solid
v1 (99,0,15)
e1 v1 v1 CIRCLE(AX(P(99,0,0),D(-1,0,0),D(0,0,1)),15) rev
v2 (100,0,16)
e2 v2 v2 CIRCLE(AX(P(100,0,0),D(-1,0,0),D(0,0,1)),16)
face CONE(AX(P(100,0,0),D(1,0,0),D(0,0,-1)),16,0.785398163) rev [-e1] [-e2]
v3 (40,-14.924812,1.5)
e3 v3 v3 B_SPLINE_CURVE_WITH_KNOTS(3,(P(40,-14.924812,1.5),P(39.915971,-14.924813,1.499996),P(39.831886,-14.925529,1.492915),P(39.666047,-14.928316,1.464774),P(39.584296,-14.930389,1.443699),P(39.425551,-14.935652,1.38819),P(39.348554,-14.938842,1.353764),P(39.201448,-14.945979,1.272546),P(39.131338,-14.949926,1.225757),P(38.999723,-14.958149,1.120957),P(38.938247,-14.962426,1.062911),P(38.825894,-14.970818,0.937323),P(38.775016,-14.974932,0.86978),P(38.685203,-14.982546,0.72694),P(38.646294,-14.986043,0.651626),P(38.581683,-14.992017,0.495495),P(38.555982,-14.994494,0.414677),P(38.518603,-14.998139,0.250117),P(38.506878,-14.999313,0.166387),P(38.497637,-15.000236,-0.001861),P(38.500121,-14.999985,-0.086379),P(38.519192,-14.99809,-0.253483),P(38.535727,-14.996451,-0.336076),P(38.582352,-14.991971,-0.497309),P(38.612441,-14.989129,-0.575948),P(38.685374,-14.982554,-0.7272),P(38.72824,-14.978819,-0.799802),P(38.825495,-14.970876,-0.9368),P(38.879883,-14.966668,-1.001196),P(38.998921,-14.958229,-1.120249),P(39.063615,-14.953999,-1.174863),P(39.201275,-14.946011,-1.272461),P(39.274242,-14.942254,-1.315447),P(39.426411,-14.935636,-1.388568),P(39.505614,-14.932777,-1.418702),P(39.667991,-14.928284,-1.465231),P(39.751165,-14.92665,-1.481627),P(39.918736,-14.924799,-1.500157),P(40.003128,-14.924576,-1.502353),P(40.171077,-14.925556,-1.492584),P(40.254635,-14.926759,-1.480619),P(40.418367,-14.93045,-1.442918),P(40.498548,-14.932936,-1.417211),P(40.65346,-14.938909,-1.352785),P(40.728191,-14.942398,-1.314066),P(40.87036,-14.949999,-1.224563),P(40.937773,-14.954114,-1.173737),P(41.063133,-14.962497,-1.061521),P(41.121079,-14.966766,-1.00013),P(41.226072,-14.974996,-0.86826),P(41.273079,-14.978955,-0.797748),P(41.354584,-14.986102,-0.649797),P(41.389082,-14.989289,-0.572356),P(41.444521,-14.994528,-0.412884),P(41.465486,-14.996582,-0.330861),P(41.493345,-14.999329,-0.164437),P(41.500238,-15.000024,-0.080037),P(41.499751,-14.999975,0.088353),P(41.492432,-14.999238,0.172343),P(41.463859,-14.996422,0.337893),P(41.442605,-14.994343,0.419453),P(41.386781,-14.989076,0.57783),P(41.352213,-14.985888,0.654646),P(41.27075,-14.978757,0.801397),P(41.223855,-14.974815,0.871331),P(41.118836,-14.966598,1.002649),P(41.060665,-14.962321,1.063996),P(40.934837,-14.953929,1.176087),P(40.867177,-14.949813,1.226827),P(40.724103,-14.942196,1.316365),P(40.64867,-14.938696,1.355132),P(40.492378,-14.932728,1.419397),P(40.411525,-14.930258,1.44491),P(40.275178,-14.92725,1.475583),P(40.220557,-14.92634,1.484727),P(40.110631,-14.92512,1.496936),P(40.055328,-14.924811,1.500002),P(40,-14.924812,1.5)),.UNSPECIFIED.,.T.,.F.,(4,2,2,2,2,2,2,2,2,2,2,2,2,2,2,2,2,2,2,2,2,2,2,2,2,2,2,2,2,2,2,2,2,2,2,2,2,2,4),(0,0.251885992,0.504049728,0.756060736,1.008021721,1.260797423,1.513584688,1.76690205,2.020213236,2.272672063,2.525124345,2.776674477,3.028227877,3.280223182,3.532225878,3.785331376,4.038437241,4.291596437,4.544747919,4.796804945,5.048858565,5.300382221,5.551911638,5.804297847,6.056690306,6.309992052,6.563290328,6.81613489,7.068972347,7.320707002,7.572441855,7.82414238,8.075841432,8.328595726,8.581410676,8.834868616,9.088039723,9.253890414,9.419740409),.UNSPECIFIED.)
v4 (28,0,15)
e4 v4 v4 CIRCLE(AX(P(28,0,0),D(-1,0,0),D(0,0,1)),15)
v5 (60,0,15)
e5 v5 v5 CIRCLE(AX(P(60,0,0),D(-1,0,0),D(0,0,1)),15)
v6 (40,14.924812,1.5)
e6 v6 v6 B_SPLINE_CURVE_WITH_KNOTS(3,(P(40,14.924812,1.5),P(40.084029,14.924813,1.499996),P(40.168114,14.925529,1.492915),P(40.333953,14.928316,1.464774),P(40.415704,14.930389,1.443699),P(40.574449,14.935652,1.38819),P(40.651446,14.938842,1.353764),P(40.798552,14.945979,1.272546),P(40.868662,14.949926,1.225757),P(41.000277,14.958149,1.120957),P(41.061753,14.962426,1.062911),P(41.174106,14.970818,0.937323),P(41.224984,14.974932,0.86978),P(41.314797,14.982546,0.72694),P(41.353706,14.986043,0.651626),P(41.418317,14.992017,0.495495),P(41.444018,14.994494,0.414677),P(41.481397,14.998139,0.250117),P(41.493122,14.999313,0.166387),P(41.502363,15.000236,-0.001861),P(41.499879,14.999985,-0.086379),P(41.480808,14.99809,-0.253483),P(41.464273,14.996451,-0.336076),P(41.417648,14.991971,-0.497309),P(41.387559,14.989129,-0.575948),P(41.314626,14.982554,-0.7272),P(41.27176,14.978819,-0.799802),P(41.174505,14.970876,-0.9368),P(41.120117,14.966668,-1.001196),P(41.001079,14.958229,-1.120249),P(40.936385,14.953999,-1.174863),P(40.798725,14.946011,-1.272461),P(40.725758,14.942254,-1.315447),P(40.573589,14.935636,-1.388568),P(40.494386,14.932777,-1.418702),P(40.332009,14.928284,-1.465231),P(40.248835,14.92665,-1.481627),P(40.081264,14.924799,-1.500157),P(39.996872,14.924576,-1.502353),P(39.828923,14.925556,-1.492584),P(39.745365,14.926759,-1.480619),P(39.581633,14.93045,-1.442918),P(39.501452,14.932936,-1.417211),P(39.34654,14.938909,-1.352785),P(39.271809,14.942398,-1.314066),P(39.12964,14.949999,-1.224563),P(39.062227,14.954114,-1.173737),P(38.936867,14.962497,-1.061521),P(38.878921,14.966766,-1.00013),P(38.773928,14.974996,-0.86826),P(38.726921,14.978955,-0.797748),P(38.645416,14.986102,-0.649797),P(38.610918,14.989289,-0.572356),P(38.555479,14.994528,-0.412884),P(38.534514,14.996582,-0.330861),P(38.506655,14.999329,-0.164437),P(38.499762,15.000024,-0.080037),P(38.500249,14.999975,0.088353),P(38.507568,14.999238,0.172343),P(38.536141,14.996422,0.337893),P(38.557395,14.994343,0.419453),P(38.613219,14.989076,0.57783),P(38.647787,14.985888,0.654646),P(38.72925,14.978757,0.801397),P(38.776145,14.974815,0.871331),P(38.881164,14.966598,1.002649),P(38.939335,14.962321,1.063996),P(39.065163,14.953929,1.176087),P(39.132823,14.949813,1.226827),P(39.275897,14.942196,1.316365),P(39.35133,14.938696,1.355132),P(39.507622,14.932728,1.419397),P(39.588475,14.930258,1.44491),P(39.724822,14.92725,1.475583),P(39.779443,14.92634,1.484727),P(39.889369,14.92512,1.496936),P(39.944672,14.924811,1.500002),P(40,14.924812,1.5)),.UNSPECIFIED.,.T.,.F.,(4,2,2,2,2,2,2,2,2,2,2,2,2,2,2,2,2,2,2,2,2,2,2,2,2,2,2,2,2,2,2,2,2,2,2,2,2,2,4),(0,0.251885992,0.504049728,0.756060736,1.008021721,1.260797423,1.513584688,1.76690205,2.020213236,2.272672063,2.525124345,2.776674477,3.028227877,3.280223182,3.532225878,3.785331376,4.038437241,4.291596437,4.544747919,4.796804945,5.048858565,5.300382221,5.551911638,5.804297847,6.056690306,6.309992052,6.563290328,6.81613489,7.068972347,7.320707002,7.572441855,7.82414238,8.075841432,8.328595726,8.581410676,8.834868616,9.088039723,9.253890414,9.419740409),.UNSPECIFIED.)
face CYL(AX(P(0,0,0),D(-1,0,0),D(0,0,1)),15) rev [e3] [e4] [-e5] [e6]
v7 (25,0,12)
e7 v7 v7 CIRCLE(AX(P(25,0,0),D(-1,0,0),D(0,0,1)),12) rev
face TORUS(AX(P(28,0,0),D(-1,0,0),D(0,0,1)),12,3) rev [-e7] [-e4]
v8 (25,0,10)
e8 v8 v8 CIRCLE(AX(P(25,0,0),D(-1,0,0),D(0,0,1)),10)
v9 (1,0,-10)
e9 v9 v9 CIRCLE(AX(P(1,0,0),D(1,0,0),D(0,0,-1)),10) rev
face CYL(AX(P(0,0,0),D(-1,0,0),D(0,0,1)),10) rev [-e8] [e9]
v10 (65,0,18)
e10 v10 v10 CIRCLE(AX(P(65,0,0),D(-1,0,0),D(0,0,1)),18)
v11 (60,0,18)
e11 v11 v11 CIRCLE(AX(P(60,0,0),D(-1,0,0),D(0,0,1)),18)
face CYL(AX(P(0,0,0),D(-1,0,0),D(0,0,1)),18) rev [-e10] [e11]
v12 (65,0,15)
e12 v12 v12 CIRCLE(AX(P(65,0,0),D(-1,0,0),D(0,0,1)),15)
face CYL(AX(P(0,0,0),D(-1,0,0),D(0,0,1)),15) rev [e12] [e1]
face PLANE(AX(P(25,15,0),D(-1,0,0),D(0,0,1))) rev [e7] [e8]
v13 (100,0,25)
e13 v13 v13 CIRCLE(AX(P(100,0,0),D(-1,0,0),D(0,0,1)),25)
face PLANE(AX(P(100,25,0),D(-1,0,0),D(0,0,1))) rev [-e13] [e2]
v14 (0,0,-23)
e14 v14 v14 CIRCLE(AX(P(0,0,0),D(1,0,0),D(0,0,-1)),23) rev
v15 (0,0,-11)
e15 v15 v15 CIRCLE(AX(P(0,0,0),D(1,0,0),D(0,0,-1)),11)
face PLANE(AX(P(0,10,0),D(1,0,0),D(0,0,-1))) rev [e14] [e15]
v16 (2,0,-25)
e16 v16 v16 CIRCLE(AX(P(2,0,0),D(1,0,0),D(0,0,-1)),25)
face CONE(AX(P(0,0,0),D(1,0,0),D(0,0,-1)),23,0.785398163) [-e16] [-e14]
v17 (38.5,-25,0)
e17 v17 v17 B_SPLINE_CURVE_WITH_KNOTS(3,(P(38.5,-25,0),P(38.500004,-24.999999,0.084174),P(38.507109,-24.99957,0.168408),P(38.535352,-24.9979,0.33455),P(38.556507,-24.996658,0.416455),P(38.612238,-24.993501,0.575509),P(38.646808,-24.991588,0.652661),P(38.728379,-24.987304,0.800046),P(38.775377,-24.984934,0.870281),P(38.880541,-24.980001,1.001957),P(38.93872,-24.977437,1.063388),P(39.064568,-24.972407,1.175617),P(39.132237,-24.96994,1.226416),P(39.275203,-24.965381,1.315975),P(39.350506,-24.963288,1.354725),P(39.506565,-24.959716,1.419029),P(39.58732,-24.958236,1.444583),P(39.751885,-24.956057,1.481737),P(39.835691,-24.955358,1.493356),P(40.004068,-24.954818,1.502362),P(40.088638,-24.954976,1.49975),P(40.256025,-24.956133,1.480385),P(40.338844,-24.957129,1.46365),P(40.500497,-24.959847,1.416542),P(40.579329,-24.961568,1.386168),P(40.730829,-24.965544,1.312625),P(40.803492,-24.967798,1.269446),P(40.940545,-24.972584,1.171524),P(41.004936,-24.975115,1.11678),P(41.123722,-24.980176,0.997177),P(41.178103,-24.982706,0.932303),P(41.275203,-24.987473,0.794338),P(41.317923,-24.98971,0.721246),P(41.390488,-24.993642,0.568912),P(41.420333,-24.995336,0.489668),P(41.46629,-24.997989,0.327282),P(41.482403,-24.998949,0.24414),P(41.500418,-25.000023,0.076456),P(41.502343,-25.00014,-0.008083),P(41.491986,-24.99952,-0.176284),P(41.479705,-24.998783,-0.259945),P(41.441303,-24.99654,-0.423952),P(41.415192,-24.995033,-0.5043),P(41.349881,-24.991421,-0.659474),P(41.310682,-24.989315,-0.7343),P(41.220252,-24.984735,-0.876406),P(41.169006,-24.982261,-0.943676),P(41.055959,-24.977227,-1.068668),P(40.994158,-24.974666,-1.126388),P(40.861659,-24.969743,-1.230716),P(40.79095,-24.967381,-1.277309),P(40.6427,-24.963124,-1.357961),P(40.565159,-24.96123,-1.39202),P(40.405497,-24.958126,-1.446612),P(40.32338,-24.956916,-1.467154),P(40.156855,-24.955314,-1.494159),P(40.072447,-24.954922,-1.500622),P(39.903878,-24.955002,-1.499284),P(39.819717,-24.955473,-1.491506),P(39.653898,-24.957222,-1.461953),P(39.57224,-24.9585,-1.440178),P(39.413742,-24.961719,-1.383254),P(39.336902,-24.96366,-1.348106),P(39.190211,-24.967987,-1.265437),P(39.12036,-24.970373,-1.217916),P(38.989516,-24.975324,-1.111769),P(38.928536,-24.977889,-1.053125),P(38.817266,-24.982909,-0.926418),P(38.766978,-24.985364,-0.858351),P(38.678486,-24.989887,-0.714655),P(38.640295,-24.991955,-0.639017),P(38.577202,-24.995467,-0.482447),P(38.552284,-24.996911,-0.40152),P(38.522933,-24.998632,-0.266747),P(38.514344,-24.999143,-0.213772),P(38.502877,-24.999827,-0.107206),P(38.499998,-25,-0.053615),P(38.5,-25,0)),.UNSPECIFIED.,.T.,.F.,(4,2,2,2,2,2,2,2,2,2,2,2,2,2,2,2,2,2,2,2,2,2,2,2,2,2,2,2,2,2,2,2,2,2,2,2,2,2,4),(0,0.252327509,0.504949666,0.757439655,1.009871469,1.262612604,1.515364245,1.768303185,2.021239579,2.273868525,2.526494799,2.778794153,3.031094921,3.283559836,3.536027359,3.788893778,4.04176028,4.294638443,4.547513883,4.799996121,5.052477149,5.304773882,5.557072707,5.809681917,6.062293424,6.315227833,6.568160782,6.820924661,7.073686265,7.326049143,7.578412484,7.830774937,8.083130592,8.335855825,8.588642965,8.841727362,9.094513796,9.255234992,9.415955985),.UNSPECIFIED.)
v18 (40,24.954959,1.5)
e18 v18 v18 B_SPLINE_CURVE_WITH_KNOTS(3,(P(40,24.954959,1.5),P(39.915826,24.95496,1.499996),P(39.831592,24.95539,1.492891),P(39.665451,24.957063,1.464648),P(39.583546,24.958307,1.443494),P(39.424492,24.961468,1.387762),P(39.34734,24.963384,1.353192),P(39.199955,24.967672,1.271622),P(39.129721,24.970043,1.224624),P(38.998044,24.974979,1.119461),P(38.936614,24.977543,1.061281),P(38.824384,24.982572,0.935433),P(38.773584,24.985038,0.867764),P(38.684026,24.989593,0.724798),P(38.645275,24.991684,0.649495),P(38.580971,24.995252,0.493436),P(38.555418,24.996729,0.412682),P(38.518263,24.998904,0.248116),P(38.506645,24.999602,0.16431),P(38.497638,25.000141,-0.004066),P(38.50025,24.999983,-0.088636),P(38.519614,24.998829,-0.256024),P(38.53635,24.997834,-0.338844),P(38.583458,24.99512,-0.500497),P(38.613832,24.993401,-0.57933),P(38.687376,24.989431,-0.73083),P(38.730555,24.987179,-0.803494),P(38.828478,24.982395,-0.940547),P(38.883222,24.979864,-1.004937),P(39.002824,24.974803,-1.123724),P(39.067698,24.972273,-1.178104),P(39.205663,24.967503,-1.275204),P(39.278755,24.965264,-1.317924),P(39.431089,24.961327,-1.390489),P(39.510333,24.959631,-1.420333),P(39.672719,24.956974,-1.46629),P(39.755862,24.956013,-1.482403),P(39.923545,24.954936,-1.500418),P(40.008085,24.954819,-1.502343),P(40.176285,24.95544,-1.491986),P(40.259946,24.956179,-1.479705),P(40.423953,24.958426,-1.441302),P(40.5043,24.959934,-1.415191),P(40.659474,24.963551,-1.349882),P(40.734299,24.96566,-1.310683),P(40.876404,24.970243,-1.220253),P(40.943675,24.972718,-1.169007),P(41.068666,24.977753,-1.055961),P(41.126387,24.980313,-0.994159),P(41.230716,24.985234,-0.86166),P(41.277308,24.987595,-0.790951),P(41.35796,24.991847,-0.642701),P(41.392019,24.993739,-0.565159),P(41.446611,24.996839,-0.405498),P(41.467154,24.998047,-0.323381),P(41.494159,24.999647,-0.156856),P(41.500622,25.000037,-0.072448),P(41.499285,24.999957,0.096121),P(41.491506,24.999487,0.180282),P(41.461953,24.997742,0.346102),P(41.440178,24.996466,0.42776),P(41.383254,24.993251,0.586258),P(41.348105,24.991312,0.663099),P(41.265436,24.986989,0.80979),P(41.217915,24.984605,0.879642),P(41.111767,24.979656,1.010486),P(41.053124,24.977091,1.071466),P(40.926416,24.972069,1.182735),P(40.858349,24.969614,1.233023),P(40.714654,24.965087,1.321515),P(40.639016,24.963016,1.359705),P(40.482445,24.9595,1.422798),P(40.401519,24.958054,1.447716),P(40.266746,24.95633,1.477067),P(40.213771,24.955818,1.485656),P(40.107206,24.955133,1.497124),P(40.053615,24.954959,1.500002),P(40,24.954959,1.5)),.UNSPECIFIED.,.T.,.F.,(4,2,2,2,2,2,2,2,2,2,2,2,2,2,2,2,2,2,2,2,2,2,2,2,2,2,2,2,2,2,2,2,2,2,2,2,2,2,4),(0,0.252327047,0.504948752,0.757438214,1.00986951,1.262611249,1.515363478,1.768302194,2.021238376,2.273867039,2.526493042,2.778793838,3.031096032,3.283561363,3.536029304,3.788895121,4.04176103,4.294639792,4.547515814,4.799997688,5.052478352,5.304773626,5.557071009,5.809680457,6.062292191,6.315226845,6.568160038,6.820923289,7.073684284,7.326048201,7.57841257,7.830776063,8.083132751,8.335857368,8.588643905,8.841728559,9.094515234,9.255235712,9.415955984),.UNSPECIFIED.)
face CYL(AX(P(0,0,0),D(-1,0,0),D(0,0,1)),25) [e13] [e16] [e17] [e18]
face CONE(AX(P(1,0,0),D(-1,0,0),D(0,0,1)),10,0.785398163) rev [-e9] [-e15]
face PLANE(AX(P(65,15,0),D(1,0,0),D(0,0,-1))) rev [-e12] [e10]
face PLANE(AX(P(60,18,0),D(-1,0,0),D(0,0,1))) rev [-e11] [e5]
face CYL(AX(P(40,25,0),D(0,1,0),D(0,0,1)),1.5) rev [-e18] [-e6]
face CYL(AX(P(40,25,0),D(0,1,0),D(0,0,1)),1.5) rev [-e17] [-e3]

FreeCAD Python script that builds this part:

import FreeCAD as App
import Part
import Sketcher

V = App.Vector
Q = App.Units.Quantity


def edges_at(feature, points):
    """Names of the edges that pass closest to the given points."""
    edges = feature.Shape.Edges
    near = lambda p: min(range(len(edges)), key=lambda i: edges[i].distToShape(Part.Vertex(*p))[0])
    return sorted({f"Edge{near(p) + 1}" for p in points})


def add_polygon(sketch, points):
    """Adds a closed chain of lines whose ends are joined by coincident constraints."""
    first, n = sketch.GeometryCount, len(points)
    for a, b in zip(points, points[1:] + points[:1]):
        sketch.addGeometry(Part.LineSegment(App.Vector(*a, 0), App.Vector(*b, 0)), False)
    for i in range(n):
        sketch.addConstraint(Sketcher.Constraint("Coincident", first + i, 2, first + (i + 1) % n, 1))

doc = App.newDocument("Part")
body = doc.addObject("PartDesign::Body", "Body")

# Sketch on XY plane
sketch1 = doc.addObject("Sketcher::SketchObject", "Sketch")
body.addObject(sketch1)
sketch1.AttachmentSupport = (doc.XY_Plane, [""])
sketch1.MapMode = "FlatFace"
add_polygon(sketch1, [(0, 25), (0, 10), (25, 10), (25, 15), (60, 15), (60, 18), (65, 18), (65, 15), (100, 15), (100, 25)])  # lines 0-9
sketch1.addConstraint(Sketcher.Constraint("Vertical", 0))
sketch1.addConstraint(Sketcher.Constraint("Horizontal", 1))
sketch1.addConstraint(Sketcher.Constraint("Vertical", 2))
sketch1.addConstraint(Sketcher.Constraint("Horizontal", 3))
sketch1.addConstraint(Sketcher.Constraint("Vertical", 4))
sketch1.addConstraint(Sketcher.Constraint("Horizontal", 5))
sketch1.addConstraint(Sketcher.Constraint("Vertical", 6))
sketch1.addConstraint(Sketcher.Constraint("Horizontal", 7))
sketch1.addConstraint(Sketcher.Constraint("Vertical", 8))
sketch1.addConstraint(Sketcher.Constraint("Horizontal", 9))
sketch1.addConstraint(Sketcher.Constraint("PointOnObject", 0, 2, -2))
sketch1.addConstraint(Sketcher.Constraint("Horizontal", 3, 2, 6, 2))
sketch1.addConstraint(Sketcher.Constraint("Equal", 3, 7))
sketch1.addConstraint(Sketcher.Constraint("Equal", 5, 2))
sketch1.addConstraint(Sketcher.Constraint("DistanceX", 1, 1, 1, 2, Q("25 mm")))
sketch1.addConstraint(Sketcher.Constraint("DistanceX", 3, 1, 3, 2, Q("35 mm")))
sketch1.addConstraint(Sketcher.Constraint("DistanceX", 5, 1, 5, 2, Q("5 mm")))
sketch1.addConstraint(Sketcher.Constraint("DistanceY", 0, 2, 0, 1, Q("15 mm")))
sketch1.addConstraint(Sketcher.Constraint("DistanceY", 4, 1, 4, 2, Q("3 mm")))
sketch1.addConstraint(Sketcher.Constraint("DistanceY", -1, 1, 0, 2, Q("10 mm")))
revolution = doc.addObject("PartDesign::Revolution", "Revolution")
body.addObject(revolution)
revolution.Profile = sketch1
revolution.ReferenceAxis = (sketch1, ["H_Axis"])
revolution.Angle = 360
doc.recompute()

fillet = doc.addObject("PartDesign::Fillet", "Fillet")
body.addObject(fillet)
fillet.Base = (revolution, edges_at(revolution, [(25, 0, -15)]))
fillet.Radius = 3
doc.recompute()

chamfer = doc.addObject("PartDesign::Chamfer", "Chamfer")
body.addObject(chamfer)
chamfer.Base = (fillet, edges_at(fillet, [(0, 0, -25)]))
chamfer.Size = 2
doc.recompute()

chamfer2 = doc.addObject("PartDesign::Chamfer", "Chamfer001")
body.addObject(chamfer2)
chamfer2.Base = (chamfer, edges_at(chamfer, [(100, 0, -15), (0, 0, -10)]))
chamfer2.Size = 1

# Sketch on XZ plane
sketch2 = doc.addObject("Sketcher::SketchObject", "Sketch001")
body.addObject(sketch2)
sketch2.AttachmentSupport = (doc.XZ_Plane, [""])
sketch2.MapMode = "FlatFace"
sketch2.AttachmentOffset = App.Placement(V(0, 0, -25), App.Rotation())
sketch2.addGeometry(Part.Circle(V(40, 0, 0), V(0, 0, 1), 1.5), False)
sketch2.addConstraint(Sketcher.Constraint("PointOnObject", 0, 3, -1))
sketch2.addConstraint(Sketcher.Constraint("Diameter", 0, Q("3 mm")))
sketch2.addConstraint(Sketcher.Constraint("DistanceX", -1, 1, 0, 3, Q("40 mm")))
doc.recompute()
hole = doc.addObject("PartDesign::Hole", "Hole")
body.addObject(hole)
hole.Profile = sketch2
hole.ThreadType = "None"
hole.Diameter = 3
hole.DepthType = "ThroughAll"
hole.Reversed = True

doc.recompute()
